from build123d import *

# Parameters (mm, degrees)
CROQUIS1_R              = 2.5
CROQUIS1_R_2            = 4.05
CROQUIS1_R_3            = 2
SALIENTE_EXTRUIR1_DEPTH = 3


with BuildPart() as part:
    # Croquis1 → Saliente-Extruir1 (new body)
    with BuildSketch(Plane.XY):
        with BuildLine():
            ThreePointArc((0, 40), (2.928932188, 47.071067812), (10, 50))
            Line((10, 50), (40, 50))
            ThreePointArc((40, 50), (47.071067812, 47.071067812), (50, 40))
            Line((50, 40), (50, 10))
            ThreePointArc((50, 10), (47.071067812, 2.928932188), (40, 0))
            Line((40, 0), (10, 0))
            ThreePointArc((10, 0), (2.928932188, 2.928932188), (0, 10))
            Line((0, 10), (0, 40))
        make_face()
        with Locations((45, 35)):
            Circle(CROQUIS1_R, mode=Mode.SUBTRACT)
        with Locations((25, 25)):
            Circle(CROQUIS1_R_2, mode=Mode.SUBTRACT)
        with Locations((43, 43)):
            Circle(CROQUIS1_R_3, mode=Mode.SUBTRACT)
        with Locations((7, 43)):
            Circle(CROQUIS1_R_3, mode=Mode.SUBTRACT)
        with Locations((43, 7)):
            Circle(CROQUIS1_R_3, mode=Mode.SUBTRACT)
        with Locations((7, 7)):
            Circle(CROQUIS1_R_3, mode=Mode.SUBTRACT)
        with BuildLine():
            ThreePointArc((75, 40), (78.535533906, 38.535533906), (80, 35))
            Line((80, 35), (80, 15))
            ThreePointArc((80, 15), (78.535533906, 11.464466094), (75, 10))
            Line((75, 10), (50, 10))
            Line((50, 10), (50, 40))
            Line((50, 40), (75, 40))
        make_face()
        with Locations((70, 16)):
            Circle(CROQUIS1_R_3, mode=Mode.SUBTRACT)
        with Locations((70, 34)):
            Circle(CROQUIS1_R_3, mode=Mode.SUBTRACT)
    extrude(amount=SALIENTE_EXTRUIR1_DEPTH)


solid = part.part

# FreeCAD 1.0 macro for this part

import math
import FreeCAD as App
import Part
import Sketcher

doc = App.newDocument("Part")
params = doc.addObject("Spreadsheet::Sheet", "Params")
for row, (alias, value) in enumerate([
    ("sketch1_diameter", "4 mm"),
    ("sketch1_diameter2", "5 mm"),
    ("sketch1_radius", "10 mm"),
    ("sketch1_radius2", "5 mm"),
    ("sketch1_diameter3", "8.1 mm"),
    ("pad1_length", "3 mm"),
], start=1):
    params.set(f"A{row}", alias)
    params.set(f"B{row}", "=" + value)
    params.setAlias(f"B{row}", alias)

body = doc.addObject("PartDesign::Body", "Body")

# Sketch on XY plane
sketch1 = body.newObject("Sketcher::SketchObject", "Sketch")
sketch1.AttachmentSupport = (doc.getObject("XY_Plane"), [""])
sketch1.MapMode = "FlatFace"
sketch1.addGeometry(Part.ArcOfCircle(Part.Circle(App.Vector(10, 40, 0), App.Vector(0, 0, 1), 10), math.radians(90), math.radians(180)), False)
sketch1.addGeometry(Part.LineSegment(App.Vector(0, 40, 0), App.Vector(0, 10, 0)), False)
sketch1.addGeometry(Part.ArcOfCircle(Part.Circle(App.Vector(10, 10, 0), App.Vector(0, 0, 1), 10), math.radians(180), math.radians(270)), False)
sketch1.addGeometry(Part.LineSegment(App.Vector(10, 0, 0), App.Vector(40, 0, 0)), False)
sketch1.addGeometry(Part.ArcOfCircle(Part.Circle(App.Vector(40, 10, 0), App.Vector(0, 0, 1), 10), math.radians(-90), math.radians(0)), False)
sketch1.addGeometry(Part.LineSegment(App.Vector(50, 10, 0), App.Vector(75, 10, 0)), False)
sketch1.addGeometry(Part.ArcOfCircle(Part.Circle(App.Vector(75, 15, 0), App.Vector(0, 0, 1), 5), math.radians(-90), math.radians(0)), False)
sketch1.addGeometry(Part.LineSegment(App.Vector(80, 15, 0), App.Vector(80, 35, 0)), False)
sketch1.addGeometry(Part.ArcOfCircle(Part.Circle(App.Vector(75, 35, 0), App.Vector(0, 0, 1), 5), math.radians(0), math.radians(90)), False)
sketch1.addGeometry(Part.LineSegment(App.Vector(75, 40, 0), App.Vector(50, 40, 0)), False)
sketch1.addGeometry(Part.ArcOfCircle(Part.Circle(App.Vector(40, 40, 0), App.Vector(0, 0, 1), 10), math.radians(0), math.radians(90)), False)
sketch1.addGeometry(Part.LineSegment(App.Vector(40, 50, 0), App.Vector(10, 50, 0)), False)
sketch1.addGeometry(Part.Circle(App.Vector(43, 7, 0), App.Vector(0, 0, 1), 2), False)
sketch1.addGeometry(Part.Circle(App.Vector(70, 16, 0), App.Vector(0, 0, 1), 2), False)
sketch1.addGeometry(Part.Circle(App.Vector(7, 7, 0), App.Vector(0, 0, 1), 2), False)
sketch1.addGeometry(Part.Circle(App.Vector(70, 34, 0), App.Vector(0, 0, 1), 2), False)
sketch1.addGeometry(Part.Circle(App.Vector(45, 35, 0), App.Vector(0, 0, 1), 2.5), False)
sketch1.addGeometry(Part.Circle(App.Vector(43, 43, 0), App.Vector(0, 0, 1), 2), False)
sketch1.addGeometry(Part.Circle(App.Vector(25, 25, 0), App.Vector(0, 0, 1), 4.05), False)
sketch1.addGeometry(Part.Circle(App.Vector(7, 43, 0), App.Vector(0, 0, 1), 2), False)
sketch1.addConstraint(Sketcher.Constraint("Tangent", 0, 2, 1, 1))
sketch1.addConstraint(Sketcher.Constraint("Tangent", 1, 2, 2, 1))
sketch1.addConstraint(Sketcher.Constraint("Tangent", 2, 2, 3, 1))
sketch1.addConstraint(Sketcher.Constraint("Tangent", 3, 2, 4, 1))
sketch1.addConstraint(Sketcher.Constraint("Coincident", 4, 2, 5, 1))
sketch1.addConstraint(Sketcher.Constraint("Tangent", 5, 2, 6, 1))
sketch1.addConstraint(Sketcher.Constraint("Tangent", 6, 2, 7, 1))
sketch1.addConstraint(Sketcher.Constraint("Tangent", 7, 2, 8, 1))
sketch1.addConstraint(Sketcher.Constraint("Tangent", 8, 2, 9, 1))
sketch1.addConstraint(Sketcher.Constraint("Coincident", 9, 2, 10, 1))
sketch1.addConstraint(Sketcher.Constraint("Tangent", 10, 2, 11, 1))
sketch1.addConstraint(Sketcher.Constraint("Tangent", 11, 2, 0, 1))
sketch1.addConstraint(Sketcher.Constraint("Vertical", 1))
sketch1.addConstraint(Sketcher.Constraint("Horizontal", 3))
sketch1.addConstraint(Sketcher.Constraint("Horizontal", 5))
sketch1.addConstraint(Sketcher.Constraint("Vertical", 7))
sketch1.addConstraint(Sketcher.Constraint("Horizontal", 9))
sketch1.addConstraint(Sketcher.Constraint("Horizontal", 11))
sketch1.addConstraint(Sketcher.Constraint("Equal", 0, 2))
sketch1.addConstraint(Sketcher.Constraint("Equal", 2, 4))
sketch1.addConstraint(Sketcher.Constraint("Equal", 6, 8))
sketch1.addConstraint(Sketcher.Constraint("Equal", 4, 10))
sketch1.addConstraint(Sketcher.Constraint("Equal", 12, 13))
sketch1.addConstraint(Sketcher.Constraint("Equal", 13, 14))
sketch1.addConstraint(Sketcher.Constraint("Equal", 14, 15))
sketch1.addConstraint(Sketcher.Constraint("Equal", 15, 17))
sketch1.addConstraint(Sketcher.Constraint("Equal", 17, 19))
sketch1.addConstraint(Sketcher.Constraint("PointOnObject", 0, 2, -2))
sketch1.addConstraint(Sketcher.Constraint("PointOnObject", 2, 2, -1))
sketch1.addConstraint(Sketcher.Constraint("Horizontal", 12, 3, 14, 3))
sketch1.addConstraint(Sketcher.Constraint("Horizontal", 8, 3, 16, 3))
sketch1.addConstraint(Sketcher.Constraint("Horizontal", 17, 3, 19, 3))
sketch1.addConstraint(Sketcher.Constraint("Horizontal", 1, 2, 4, 2))
sketch1.addConstraint(Sketcher.Constraint("Horizontal", 0, 2, 8, 2))
sketch1.addConstraint(Sketcher.Constraint("Vertical", 4, 3, 10, 3))
sketch1.addConstraint(Sketcher.Constraint("Vertical", 13, 3, 15, 3))
sketch1.addConstraint(Sketcher.Constraint("Vertical", 12, 3, 17, 3))
sketch1.addConstraint(Sketcher.Constraint("Vertical", 14, 3, 19, 3))
sketch1.addConstraint(Sketcher.Constraint("Equal", 11, 1))
sketch1.addConstraint(Sketcher.Constraint("Diameter", 12, 4.0))
sketch1.addConstraint(Sketcher.Constraint("Diameter", 16, 5.0))
sketch1.addConstraint(Sketcher.Constraint("Radius", 0, 10.0))
sketch1.addConstraint(Sketcher.Constraint("Radius", 6, 5.0))
sketch1.addConstraint(Sketcher.Constraint("Diameter", 18, 8.1))
sketch1.addConstraint(Sketcher.Constraint("DistanceX", 3, 1, 3, 2, 30.0))
sketch1.addConstraint(Sketcher.Constraint("DistanceX", 5, 1, 5, 2, 25.0))
sketch1.addConstraint(Sketcher.Constraint("DistanceX", -1, 1, 12, 3, 43.0))
sketch1.addConstraint(Sketcher.Constraint("DistanceY", -1, 1, 12, 3, 7.0))
sketch1.addConstraint(Sketcher.Constraint("DistanceX", -1, 1, 13, 3, 70.0))
sketch1.addConstraint(Sketcher.Constraint("DistanceY", -1, 1, 13, 3, 16.0))
sketch1.addConstraint(Sketcher.Constraint("DistanceX", -1, 1, 14, 3, 7.0))
sketch1.addConstraint(Sketcher.Constraint("DistanceY", -1, 1, 15, 3, 34.0))
sketch1.addConstraint(Sketcher.Constraint("DistanceX", -1, 1, 16, 3, 45.0))
sketch1.addConstraint(Sketcher.Constraint("DistanceY", -1, 1, 17, 3, 43.0))
sketch1.addConstraint(Sketcher.Constraint("DistanceX", -1, 1, 18, 3, 25.0))
sketch1.addConstraint(Sketcher.Constraint("DistanceY", -1, 1, 18, 3, 25.0))
sketch1.setExpression("Constraints[39]", "Params.sketch1_diameter")
sketch1.setExpression("Constraints[40]", "Params.sketch1_diameter2")
sketch1.setExpression("Constraints[41]", "Params.sketch1_radius")
sketch1.setExpression("Constraints[42]", "Params.sketch1_radius2")
sketch1.setExpression("Constraints[43]", "Params.sketch1_diameter3")
pad1 = body.newObject("PartDesign::Pad", "Pad")
pad1.Profile = sketch1
pad1.setExpression("Length", "Params.pad1_length")

doc.recompute()
